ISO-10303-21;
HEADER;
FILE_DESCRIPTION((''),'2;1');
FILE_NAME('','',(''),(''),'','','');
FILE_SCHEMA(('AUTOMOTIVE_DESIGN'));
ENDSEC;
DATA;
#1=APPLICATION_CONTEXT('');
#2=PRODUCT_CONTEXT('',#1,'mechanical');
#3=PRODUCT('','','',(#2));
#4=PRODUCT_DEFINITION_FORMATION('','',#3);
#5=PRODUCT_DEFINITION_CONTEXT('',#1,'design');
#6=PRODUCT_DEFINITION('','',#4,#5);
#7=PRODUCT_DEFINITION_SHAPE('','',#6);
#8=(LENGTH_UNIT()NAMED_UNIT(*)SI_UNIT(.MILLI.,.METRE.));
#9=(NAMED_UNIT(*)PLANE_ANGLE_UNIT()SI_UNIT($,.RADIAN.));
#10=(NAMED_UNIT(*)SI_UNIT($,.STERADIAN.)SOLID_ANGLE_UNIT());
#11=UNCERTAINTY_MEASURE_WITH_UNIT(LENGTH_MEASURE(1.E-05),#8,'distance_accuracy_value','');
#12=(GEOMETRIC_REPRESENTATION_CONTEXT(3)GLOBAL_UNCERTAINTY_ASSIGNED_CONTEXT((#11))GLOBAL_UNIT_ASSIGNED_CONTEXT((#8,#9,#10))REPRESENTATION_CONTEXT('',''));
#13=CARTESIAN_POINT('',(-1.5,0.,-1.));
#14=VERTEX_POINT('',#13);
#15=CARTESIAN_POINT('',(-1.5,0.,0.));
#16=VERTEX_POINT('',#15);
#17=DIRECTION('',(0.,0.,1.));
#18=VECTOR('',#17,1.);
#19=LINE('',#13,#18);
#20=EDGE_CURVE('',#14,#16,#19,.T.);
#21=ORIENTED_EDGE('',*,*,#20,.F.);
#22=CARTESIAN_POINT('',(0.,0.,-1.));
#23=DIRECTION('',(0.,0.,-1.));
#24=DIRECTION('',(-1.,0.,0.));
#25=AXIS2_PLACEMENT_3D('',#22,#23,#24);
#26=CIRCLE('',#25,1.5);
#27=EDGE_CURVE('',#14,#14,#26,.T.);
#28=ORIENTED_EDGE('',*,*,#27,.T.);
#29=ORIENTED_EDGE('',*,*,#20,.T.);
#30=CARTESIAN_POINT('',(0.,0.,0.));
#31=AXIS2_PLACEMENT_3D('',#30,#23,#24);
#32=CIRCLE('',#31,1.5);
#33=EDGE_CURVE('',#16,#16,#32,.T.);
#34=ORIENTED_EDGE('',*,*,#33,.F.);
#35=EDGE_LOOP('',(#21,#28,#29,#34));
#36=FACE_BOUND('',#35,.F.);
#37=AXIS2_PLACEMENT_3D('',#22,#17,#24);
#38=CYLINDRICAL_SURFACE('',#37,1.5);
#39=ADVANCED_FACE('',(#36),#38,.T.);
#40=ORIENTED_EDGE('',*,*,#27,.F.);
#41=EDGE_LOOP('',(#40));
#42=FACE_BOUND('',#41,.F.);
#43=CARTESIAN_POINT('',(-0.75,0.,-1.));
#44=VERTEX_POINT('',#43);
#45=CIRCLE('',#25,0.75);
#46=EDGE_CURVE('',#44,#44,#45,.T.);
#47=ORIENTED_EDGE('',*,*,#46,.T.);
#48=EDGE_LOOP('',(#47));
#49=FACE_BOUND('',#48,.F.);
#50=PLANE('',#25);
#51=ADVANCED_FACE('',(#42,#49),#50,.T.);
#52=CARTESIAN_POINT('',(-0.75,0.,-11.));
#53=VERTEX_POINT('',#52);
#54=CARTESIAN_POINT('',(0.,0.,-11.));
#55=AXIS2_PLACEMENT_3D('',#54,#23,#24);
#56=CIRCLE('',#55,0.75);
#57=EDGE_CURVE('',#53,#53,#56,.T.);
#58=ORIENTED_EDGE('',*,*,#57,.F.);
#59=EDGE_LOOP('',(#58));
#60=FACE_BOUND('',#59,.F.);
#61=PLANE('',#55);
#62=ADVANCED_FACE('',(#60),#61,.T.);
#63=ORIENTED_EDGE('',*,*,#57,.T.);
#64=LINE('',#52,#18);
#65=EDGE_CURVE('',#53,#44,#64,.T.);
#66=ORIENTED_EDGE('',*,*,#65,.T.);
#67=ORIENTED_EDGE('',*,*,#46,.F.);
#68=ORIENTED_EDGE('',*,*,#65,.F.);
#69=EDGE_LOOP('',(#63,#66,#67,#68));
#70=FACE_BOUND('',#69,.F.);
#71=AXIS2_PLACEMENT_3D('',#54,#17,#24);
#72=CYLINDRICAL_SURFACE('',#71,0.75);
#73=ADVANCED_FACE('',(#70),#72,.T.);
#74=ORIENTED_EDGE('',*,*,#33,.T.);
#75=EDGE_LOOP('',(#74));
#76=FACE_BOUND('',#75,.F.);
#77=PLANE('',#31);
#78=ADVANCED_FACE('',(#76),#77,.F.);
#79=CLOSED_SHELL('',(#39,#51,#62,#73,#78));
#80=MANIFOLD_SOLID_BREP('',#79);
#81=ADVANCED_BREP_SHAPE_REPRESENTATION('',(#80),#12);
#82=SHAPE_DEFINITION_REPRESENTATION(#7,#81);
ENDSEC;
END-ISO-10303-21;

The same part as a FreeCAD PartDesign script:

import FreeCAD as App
import Part
import Sketcher
from FreeCAD import Vector

doc = App.newDocument("Part")
body = doc.addObject("PartDesign::Body", "Body")

sketch1 = body.newObject("Sketcher::SketchObject", "Sketch")
sketch1.AttachmentSupport = (doc.getObject("XZ_Plane"), [""])
sketch1.MapMode = "FlatFace"
sketch1.addGeometry([
    Part.LineSegment(Vector(-1.5, 0, 0), Vector(0, 0, 0)),
    Part.LineSegment(Vector(0, 0, 0), Vector(0, -11, 0)),
    Part.LineSegment(Vector(0, -11, 0), Vector(-0.8, -11, 0)),
    Part.LineSegment(Vector(-0.8, -11, 0), Vector(-0.8, -1, 0)),
    Part.LineSegment(Vector(-0.8, -1, 0), Vector(-1.5, -1, 0)),
    Part.LineSegment(Vector(-1.5, -1, 0), Vector(-1.5, 0, 0)),
], False)
sketch1.addConstraint([
    Sketcher.Constraint("Coincident", 0, 2, 1, 1),
    Sketcher.Constraint("Coincident", 1, 2, 2, 1),
    Sketcher.Constraint("Coincident", 2, 2, 3, 1),
    Sketcher.Constraint("Coincident", 3, 2, 4, 1),
    Sketcher.Constraint("Coincident", 4, 2, 5, 1),
    Sketcher.Constraint("Coincident", 5, 2, 0, 1),
    Sketcher.Constraint("Horizontal", 0),
    Sketcher.Constraint("Vertical", 1),
    Sketcher.Constraint("Horizontal", 2),
    Sketcher.Constraint("Vertical", 3),
    Sketcher.Constraint("Horizontal", 4),
    Sketcher.Constraint("Vertical", 5),
    Sketcher.Constraint("Coincident", 0, 2, -1, 1),
    Sketcher.Constraint("Equal", 2, 4),
    Sketcher.Constraint("DistanceY", 3, 1, 3, 2, 10.0),
    Sketcher.Constraint("DistanceY", 5, 1, 5, 2, 1.0),
    Sketcher.Constraint("DistanceX", 0, 1, 0, 2, 1.5),
])
revolution = body.newObject("PartDesign::Revolution", "Revolution")
revolution.Profile = sketch1
revolution.ReferenceAxis = (sketch1, ["V_Axis"])
revolution.Angle = 360

doc.recompute()
